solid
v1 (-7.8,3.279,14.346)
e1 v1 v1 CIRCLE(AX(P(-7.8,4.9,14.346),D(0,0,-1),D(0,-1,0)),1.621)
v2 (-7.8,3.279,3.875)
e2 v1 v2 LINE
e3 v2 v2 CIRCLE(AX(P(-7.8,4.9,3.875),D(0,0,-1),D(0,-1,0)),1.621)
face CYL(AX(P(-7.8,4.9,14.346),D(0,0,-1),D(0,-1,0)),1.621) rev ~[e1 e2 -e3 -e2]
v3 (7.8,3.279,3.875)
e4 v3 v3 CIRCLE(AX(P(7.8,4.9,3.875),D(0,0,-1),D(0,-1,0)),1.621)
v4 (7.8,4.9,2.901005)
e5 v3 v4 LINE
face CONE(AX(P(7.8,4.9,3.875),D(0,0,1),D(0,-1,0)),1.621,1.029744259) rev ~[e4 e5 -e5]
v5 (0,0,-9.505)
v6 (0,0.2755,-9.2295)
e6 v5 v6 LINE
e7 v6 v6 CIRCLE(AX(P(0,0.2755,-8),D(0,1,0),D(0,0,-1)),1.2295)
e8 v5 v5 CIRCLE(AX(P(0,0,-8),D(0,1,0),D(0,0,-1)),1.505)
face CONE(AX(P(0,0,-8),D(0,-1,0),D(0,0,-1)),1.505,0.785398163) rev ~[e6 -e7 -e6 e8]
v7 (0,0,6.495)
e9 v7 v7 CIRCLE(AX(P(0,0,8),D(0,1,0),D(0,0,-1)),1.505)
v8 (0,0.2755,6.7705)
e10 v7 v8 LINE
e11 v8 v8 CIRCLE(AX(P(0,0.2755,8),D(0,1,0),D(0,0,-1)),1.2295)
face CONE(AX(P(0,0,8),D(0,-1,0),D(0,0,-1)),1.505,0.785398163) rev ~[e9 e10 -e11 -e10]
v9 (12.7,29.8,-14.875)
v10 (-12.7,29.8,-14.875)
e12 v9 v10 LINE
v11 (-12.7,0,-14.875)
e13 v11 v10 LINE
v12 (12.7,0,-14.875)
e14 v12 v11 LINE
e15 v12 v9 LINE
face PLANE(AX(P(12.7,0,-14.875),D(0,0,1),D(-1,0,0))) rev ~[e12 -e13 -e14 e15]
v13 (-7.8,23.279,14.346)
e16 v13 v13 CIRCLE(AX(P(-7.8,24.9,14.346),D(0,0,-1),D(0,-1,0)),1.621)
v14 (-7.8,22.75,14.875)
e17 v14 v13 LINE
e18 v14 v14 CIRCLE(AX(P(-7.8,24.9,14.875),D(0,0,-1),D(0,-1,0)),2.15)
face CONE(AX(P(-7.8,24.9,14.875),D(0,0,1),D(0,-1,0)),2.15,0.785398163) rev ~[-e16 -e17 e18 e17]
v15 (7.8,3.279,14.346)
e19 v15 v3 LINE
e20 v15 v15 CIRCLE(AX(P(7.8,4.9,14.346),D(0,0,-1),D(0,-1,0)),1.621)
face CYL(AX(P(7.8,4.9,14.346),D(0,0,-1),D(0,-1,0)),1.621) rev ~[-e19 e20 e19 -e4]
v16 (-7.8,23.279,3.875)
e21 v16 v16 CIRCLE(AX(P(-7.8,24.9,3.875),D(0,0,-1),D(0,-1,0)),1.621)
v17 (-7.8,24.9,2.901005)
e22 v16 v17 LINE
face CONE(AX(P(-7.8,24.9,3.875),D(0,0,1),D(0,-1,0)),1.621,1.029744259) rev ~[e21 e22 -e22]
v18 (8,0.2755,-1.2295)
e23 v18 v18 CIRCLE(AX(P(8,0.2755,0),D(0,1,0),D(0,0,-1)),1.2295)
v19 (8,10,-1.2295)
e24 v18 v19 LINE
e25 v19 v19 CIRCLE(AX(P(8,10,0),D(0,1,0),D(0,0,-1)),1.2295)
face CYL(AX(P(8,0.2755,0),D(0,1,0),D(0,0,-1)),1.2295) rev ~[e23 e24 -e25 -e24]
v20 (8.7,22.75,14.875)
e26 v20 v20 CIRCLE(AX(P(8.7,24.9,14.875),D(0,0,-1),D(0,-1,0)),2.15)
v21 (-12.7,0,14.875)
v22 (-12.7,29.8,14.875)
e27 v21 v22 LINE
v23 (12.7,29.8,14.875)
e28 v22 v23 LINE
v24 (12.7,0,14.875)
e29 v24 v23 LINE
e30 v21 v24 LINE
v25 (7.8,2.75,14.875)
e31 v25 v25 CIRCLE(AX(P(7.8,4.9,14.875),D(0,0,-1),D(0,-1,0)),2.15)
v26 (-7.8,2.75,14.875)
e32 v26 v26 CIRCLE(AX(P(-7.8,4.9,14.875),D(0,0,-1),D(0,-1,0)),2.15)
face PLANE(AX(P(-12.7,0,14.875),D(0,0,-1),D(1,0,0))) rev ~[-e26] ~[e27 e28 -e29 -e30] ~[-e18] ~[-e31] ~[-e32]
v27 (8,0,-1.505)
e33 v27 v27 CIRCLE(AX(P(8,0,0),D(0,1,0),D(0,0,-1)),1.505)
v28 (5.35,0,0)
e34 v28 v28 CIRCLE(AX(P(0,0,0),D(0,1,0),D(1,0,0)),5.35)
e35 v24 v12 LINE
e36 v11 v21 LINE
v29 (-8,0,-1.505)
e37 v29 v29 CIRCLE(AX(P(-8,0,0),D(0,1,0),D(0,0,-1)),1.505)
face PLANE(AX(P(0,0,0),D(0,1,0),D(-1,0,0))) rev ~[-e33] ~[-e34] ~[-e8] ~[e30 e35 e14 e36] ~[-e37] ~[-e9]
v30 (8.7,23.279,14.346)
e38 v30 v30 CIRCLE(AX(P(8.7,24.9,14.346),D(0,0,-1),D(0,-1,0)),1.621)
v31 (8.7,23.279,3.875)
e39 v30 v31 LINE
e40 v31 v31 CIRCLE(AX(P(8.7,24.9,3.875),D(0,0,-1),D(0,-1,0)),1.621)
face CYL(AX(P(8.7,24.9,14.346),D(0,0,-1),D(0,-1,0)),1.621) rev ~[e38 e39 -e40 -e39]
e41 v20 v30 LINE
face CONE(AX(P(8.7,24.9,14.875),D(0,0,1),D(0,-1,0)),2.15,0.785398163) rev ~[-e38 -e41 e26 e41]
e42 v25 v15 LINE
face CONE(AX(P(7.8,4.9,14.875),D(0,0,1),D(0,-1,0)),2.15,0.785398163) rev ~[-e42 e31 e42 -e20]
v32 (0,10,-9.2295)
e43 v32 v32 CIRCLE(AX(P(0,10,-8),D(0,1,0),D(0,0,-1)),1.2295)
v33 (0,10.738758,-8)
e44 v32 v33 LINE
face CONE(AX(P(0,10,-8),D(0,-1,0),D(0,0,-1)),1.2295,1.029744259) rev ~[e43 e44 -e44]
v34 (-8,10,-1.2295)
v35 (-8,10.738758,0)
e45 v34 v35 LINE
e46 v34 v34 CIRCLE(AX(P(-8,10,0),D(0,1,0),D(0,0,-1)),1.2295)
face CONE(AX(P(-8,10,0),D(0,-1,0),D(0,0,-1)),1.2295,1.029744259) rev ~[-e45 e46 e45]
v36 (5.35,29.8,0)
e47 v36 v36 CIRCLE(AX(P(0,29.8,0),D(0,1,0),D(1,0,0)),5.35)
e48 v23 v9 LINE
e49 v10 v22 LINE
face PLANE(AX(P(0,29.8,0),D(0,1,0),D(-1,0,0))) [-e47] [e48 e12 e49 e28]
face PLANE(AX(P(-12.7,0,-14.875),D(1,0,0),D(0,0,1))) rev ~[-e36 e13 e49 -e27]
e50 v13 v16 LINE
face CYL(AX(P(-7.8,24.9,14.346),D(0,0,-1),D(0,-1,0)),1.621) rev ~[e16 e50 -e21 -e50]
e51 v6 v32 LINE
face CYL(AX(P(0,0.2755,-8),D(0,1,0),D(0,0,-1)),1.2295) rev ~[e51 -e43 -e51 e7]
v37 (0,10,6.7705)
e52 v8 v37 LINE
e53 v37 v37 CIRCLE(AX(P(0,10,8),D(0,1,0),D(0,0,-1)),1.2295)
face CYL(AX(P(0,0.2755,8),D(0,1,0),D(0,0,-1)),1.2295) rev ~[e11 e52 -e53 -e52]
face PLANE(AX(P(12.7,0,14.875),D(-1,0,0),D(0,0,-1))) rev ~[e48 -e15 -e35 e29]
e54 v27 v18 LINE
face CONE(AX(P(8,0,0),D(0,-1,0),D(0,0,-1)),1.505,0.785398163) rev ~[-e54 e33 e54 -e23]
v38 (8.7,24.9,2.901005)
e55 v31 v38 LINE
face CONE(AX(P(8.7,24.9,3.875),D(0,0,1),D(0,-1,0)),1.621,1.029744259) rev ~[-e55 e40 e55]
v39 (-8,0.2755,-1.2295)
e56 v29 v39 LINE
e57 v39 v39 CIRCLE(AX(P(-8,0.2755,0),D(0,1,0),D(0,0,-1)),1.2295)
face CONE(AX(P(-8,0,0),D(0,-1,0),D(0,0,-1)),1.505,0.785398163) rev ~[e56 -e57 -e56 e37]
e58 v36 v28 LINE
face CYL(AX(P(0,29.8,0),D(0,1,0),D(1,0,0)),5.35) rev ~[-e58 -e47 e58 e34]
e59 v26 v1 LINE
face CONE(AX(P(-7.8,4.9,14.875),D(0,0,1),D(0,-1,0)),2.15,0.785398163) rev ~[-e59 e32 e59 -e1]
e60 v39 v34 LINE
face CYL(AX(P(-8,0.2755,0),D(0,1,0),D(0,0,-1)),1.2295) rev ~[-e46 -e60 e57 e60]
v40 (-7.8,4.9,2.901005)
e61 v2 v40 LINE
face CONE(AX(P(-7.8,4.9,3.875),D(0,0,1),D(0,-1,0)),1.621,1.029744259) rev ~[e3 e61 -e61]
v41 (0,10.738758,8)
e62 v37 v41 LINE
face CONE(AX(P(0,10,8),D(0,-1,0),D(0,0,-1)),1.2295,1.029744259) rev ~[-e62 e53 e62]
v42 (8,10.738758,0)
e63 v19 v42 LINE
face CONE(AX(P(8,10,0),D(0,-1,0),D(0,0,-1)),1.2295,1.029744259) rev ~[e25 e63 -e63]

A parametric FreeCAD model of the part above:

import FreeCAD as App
import Part
import Sketcher
from FreeCAD import Vector

doc = App.newDocument("Part")
body = doc.addObject("PartDesign::Body", "Body")

sketch1 = body.newObject("Sketcher::SketchObject", "Sketch")
sketch1.AttachmentSupport = (doc.getObject("XZ_Plane"), [""])
sketch1.MapMode = "FlatFace"
sketch1.addGeometry(Part.LineSegment(Vector(-13, -15, 0), Vector(-13, 15, 0)), False)
sketch1.addGeometry(Part.LineSegment(Vector(-13, 15, 0), Vector(13, 15, 0)), False)
sketch1.addGeometry(Part.LineSegment(Vector(13, 15, 0), Vector(13, -15, 0)), False)
sketch1.addGeometry(Part.LineSegment(Vector(13, -15, 0), Vector(-13, -15, 0)), False)
sketch1.addConstraint(Sketcher.Constraint("Coincident", 0, 2, 1, 1))
sketch1.addConstraint(Sketcher.Constraint("Coincident", 1, 2, 2, 1))
sketch1.addConstraint(Sketcher.Constraint("Coincident", 2, 2, 3, 1))
sketch1.addConstraint(Sketcher.Constraint("Coincident", 3, 2, 0, 1))
sketch1.addConstraint(Sketcher.Constraint("Vertical", 0))
sketch1.addConstraint(Sketcher.Constraint("Horizontal", 1))
sketch1.addConstraint(Sketcher.Constraint("Vertical", 2))
sketch1.addConstraint(Sketcher.Constraint("Horizontal", 3))
sketch1.addConstraint(Sketcher.Constraint("Symmetric", 0, 2, 2, 2, -1, 1))
sketch1.addConstraint(Sketcher.Constraint("DistanceX", 1, 1, 1, 2, 25.4))
sketch1.addConstraint(Sketcher.Constraint("DistanceY", 0, 1, 0, 2, 29.75))
pad1 = body.newObject("PartDesign::Pad", "Pad")
pad1.Profile = sketch1
pad1.Length = 29.8
pad1.Reversed = True

sketch2 = body.newObject("Sketcher::SketchObject", "Sketch001")
sketch2.AttachmentSupport = (doc.getObject("XZ_Plane"), [""])
sketch2.MapMode = "FlatFace"
sketch2.AttachmentOffset = App.Placement(Vector(0, 0, -29.8), App.Rotation())
sketch2.addGeometry(Part.Circle(Vector(0, 0, 0), Vector(0, 0, 1), 5), False)
sketch2.addConstraint(Sketcher.Constraint("Coincident", 0, 3, -1, 1))
sketch2.addConstraint(Sketcher.Constraint("Diameter", 0, 10.7))
pocket1 = body.newObject("PartDesign::Pocket", "Pocket")
pocket1.Profile = sketch2
pocket1.Type = "ThroughAll"
pocket1.Reversed = True

sketch3 = body.newObject("Sketcher::SketchObject", "Sketch002")
sketch3.AttachmentSupport = (doc.getObject("XY_Plane"), [""])
sketch3.MapMode = "FlatFace"
sketch3.AttachmentOffset = App.Placement(Vector(0, 0, 14.875), App.Rotation())
sketch3.addGeometry(Part.Circle(Vector(-7.8, 24.9, 0), Vector(0, 0, 1), 1.6), False)
sketch3.addGeometry(Part.Circle(Vector(8.7, 24.9, 0), Vector(0, 0, 1), 1.6), False)
sketch3.addGeometry(Part.Circle(Vector(7.8, 4.9, 0), Vector(0, 0, 1), 1.6), False)
sketch3.addGeometry(Part.Circle(Vector(-7.8, 4.9, 0), Vector(0, 0, 1), 1.6), False)
sketch3.addConstraint(Sketcher.Constraint("Equal", 0, 1))
sketch3.addConstraint(Sketcher.Constraint("Equal", 1, 2))
sketch3.addConstraint(Sketcher.Constraint("Equal", 2, 3))
sketch3.addConstraint(Sketcher.Constraint("Symmetric", 2, 3, 3, 3, -2))
sketch3.addConstraint(Sketcher.Constraint("Horizontal", 0, 3, 1, 3))
sketch3.addConstraint(Sketcher.Constraint("Vertical", 0, 3, 3, 3))
sketch3.addConstraint(Sketcher.Constraint("Diameter", 0, 3.242))
sketch3.addConstraint(Sketcher.Constraint("DistanceY", 2, 3, 1, 3, 20.0))
sketch3.addConstraint(Sketcher.Constraint("DistanceX", 0, 3, -1, 1, 7.8))
sketch3.addConstraint(Sketcher.Constraint("DistanceY", -1, 1, 0, 3, 24.9))
sketch3.addConstraint(Sketcher.Constraint("DistanceX", -1, 1, 1, 3, 8.7))
doc.recompute()
hole = body.newObject("PartDesign::Hole", "Hole")
hole.Profile = sketch3
hole.ThreadType = "None"
hole.Diameter = 3.242
hole.DepthType = "Dimension"
hole.Depth = 11
hole.DrillPoint = "Angled"
hole.DrillPointAngle = 118
hole.HoleCutType = "Countersink"
hole.HoleCutDiameter = 4.3
hole.HoleCutCountersinkAngle = 90

sketch4 = body.newObject("Sketcher::SketchObject", "Sketch003")
sketch4.AttachmentSupport = (doc.getObject("XZ_Plane"), [""])
sketch4.MapMode = "FlatFace"
sketch4.addGeometry(Part.Circle(Vector(8, 0, 0), Vector(0, 0, 1), 1.2), False)
sketch4.addGeometry(Part.Circle(Vector(0, -8, 0), Vector(0, 0, 1), 1.2), False)
sketch4.addGeometry(Part.Circle(Vector(-8, 0, 0), Vector(0, 0, 1), 1.2), False)
sketch4.addGeometry(Part.Circle(Vector(0, 8, 0), Vector(0, 0, 1), 1.2), False)
sketch4.addConstraint(Sketcher.Constraint("Equal", 0, 1))
sketch4.addConstraint(Sketcher.Constraint("Equal", 1, 2))
sketch4.addConstraint(Sketcher.Constraint("Equal", 2, 3))
sketch4.addConstraint(Sketcher.Constraint("Symmetric", 0, 3, 2, 3, -1, 1))
sketch4.addConstraint(Sketcher.Constraint("Symmetric", 1, 3, 3, 3, -1, 1))
sketch4.addConstraint(Sketcher.Constraint("PointOnObject", 0, 3, -1))
sketch4.addConstraint(Sketcher.Constraint("PointOnObject", 1, 3, -2))
sketch4.addConstraint(Sketcher.Constraint("Diameter", 0, 2.459))
sketch4.addConstraint(Sketcher.Constraint("DistanceX", -1, 1, 0, 3, 8.0))
sketch4.addConstraint(Sketcher.Constraint("DistanceY", 1, 3, -1, 1, 8.0))
doc.recompute()
hole2 = body.newObject("PartDesign::Hole", "Hole001")
hole2.Profile = sketch4
hole2.ThreadType = "None"
hole2.Diameter = 2.459
hole2.DepthType = "Dimension"
hole2.Depth = 10
hole2.DrillPoint = "Angled"
hole2.DrillPointAngle = 118
hole2.HoleCutType = "Countersink"
hole2.HoleCutDiameter = 3.01
hole2.HoleCutCountersinkAngle = 90

doc.recompute()
